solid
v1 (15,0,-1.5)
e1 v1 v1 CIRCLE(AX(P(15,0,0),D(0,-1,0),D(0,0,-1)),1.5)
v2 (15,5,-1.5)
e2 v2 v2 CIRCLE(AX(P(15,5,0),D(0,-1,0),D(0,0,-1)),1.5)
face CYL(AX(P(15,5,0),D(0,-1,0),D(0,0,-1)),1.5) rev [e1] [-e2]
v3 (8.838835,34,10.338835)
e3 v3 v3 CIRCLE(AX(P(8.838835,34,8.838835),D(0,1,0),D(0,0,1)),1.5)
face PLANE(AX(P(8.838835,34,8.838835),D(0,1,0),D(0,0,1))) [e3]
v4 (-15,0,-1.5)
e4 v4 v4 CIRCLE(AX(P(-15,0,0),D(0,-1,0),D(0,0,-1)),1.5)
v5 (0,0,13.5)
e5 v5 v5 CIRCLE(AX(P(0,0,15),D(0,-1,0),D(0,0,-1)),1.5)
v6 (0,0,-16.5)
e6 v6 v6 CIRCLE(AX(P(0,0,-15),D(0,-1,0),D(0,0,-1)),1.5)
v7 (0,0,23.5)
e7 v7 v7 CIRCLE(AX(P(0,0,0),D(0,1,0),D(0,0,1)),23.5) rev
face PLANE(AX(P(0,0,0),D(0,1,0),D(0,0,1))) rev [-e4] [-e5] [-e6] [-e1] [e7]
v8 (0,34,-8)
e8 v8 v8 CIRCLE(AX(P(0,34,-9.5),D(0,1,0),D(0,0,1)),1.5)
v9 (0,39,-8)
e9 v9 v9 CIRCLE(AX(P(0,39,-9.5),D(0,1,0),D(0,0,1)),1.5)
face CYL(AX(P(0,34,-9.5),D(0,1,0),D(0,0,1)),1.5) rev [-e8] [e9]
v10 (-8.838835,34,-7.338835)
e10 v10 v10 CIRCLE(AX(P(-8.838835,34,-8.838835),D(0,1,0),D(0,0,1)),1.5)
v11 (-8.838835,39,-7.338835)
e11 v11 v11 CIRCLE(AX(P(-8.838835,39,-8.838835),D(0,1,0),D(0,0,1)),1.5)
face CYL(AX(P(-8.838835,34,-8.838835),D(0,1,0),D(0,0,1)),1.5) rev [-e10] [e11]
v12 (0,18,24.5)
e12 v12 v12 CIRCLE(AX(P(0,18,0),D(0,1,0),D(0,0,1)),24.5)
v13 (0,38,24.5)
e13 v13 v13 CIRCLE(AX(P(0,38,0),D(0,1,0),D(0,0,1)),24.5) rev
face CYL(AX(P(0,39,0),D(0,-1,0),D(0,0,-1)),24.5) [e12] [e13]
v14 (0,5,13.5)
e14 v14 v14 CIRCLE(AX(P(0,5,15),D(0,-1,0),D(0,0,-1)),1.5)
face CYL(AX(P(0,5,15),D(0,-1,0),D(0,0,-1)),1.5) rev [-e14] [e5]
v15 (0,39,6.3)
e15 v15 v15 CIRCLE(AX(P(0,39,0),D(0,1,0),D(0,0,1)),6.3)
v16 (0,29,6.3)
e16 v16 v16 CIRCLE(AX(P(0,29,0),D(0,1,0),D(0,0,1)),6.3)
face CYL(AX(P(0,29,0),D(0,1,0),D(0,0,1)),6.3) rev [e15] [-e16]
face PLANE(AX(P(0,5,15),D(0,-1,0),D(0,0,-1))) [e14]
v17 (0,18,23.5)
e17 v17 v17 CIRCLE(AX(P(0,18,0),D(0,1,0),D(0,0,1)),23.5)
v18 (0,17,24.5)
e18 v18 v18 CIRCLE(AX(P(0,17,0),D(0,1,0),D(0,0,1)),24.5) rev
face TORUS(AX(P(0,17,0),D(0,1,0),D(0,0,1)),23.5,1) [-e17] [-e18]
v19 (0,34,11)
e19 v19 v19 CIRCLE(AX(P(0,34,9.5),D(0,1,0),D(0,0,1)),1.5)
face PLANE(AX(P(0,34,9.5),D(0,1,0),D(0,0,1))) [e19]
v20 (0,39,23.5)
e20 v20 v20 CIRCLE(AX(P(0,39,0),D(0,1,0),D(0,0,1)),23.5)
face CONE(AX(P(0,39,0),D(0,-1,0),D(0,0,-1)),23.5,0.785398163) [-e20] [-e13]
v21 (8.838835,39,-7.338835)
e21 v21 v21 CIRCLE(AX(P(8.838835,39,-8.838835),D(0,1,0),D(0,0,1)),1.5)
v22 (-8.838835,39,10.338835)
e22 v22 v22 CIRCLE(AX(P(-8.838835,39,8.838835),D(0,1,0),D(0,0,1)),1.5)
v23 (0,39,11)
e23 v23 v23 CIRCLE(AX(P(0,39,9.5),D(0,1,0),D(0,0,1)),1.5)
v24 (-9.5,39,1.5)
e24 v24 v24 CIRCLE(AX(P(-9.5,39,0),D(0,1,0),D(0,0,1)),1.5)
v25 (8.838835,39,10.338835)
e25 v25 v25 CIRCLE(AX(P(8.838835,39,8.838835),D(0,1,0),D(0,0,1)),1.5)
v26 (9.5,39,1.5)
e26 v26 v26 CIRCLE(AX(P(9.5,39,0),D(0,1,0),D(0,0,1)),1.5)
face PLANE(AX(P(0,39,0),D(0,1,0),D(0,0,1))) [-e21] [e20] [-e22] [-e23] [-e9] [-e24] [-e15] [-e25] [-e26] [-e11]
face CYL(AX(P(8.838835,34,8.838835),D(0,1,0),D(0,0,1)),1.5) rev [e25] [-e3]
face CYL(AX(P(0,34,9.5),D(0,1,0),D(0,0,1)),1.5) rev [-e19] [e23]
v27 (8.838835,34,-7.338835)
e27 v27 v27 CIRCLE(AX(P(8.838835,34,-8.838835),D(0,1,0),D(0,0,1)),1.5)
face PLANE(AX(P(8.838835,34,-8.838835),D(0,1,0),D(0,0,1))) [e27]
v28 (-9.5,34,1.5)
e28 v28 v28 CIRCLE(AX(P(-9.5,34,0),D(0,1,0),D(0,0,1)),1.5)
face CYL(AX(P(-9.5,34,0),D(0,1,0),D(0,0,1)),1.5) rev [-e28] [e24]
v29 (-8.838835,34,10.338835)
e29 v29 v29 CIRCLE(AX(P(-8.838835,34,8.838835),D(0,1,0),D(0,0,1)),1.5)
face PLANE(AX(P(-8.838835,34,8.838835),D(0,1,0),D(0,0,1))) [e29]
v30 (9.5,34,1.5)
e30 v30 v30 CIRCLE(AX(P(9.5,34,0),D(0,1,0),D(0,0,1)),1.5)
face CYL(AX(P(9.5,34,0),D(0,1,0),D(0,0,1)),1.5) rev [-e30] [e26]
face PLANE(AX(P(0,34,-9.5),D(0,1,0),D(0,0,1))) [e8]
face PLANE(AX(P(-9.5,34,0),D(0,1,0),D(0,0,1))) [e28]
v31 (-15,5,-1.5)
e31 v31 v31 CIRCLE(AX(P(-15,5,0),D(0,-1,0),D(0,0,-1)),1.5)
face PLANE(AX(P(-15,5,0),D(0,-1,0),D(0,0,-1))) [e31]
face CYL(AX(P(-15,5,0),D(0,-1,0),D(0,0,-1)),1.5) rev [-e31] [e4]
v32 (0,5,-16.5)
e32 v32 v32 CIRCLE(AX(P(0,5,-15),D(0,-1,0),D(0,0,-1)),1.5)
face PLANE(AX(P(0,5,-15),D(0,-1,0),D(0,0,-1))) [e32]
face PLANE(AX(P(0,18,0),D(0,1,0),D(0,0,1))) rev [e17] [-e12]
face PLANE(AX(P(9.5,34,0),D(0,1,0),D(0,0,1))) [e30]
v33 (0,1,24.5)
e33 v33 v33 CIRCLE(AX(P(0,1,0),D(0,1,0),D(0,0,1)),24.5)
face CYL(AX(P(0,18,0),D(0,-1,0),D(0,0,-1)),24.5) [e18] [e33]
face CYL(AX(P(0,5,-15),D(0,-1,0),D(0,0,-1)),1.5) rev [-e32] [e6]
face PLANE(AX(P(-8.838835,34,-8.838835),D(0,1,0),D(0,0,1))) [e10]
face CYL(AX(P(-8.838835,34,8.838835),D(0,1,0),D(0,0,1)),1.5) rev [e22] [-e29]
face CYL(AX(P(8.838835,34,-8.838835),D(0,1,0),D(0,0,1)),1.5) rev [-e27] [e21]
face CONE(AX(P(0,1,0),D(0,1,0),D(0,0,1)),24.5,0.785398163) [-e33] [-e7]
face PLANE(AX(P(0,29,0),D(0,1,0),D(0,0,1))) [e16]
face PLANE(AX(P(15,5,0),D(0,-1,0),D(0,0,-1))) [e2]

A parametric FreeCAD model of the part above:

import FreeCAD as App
import Part
import Sketcher
Q = App.Units.Quantity


def edges_at(feature, points):
    """Names of the edges that pass closest to the given points."""
    edges = feature.Shape.Edges
    near = lambda p: min(range(len(edges)), key=lambda i: edges[i].distToShape(Part.Vertex(*p))[0])
    return sorted({f"Edge{near(p) + 1}" for p in points})

doc = App.newDocument("Part")
body = doc.addObject("PartDesign::Body", "Body")

sketch1 = body.newObject("Sketcher::SketchObject", "Sketch")
sketch1.AttachmentSupport = (doc.getObject("XZ_Plane"), [""])
sketch1.MapMode = "FlatFace"
sketch1.addGeometry(Part.Circle(App.Vector(0, 0, 0), App.Vector(0, 0, 1), 24), False)
sketch1.addConstraint([
    Sketcher.Constraint("Coincident", 0, 3, -1, 1),
    Sketcher.Constraint("Diameter", 0, Q("49 mm")),
])
pad1 = body.newObject("PartDesign::Pad", "Pad")
pad1.Profile = sketch1
pad1.Length = 18
pad1.Reversed = True
doc.recompute()

fillet = body.newObject("PartDesign::Fillet", "Fillet")
fillet.Base = (pad1, edges_at(pad1, [(-24.5, 18, 0)]))
fillet.Radius = 1

sketch2 = body.newObject("Sketcher::SketchObject", "Sketch001")
sketch2.AttachmentSupport = (doc.getObject("XZ_Plane"), [""])
sketch2.MapMode = "FlatFace"
sketch2.AttachmentOffset = App.Placement(App.Vector(0, 0, -18), App.Rotation())
sketch2.addGeometry(Part.Circle(App.Vector(0, 0, 0), App.Vector(0, 0, 1), 24), False)
sketch2.addConstraint([
    Sketcher.Constraint("Coincident", 0, 3, -1, 1),
    Sketcher.Constraint("Diameter", 0, Q("49 mm")),
])
pad2 = body.newObject("PartDesign::Pad", "Pad001")
pad2.Profile = sketch2
pad2.Length = 21
pad2.Reversed = True
doc.recompute()

chamfer = body.newObject("PartDesign::Chamfer", "Chamfer")
chamfer.Base = (pad2, edges_at(pad2, [(-24.5, 39, 0)]))
chamfer.Size = 1
doc.recompute()

chamfer2 = body.newObject("PartDesign::Chamfer", "Chamfer001")
chamfer2.Base = (chamfer, edges_at(chamfer, [(-24.5, 0, 0)]))
chamfer2.Size = 1

sketch3 = body.newObject("Sketcher::SketchObject", "Sketch002")
sketch3.AttachmentSupport = (doc.getObject("XZ_Plane"), [""])
sketch3.MapMode = "FlatFace"
sketch3.AttachmentOffset = App.Placement(App.Vector(0, 0, -39), App.Rotation())
sketch3.addGeometry(Part.Circle(App.Vector(0, 0, 0), App.Vector(0, 0, 1), 6), False)
sketch3.addConstraint([
    Sketcher.Constraint("Coincident", 0, 3, -1, 1),
    Sketcher.Constraint("Diameter", 0, Q("12.6 mm")),
])
pocket1 = body.newObject("PartDesign::Pocket", "Pocket")
pocket1.Profile = sketch3
pocket1.Length = 10
pocket1.Reversed = True

sketch4 = body.newObject("Sketcher::SketchObject", "Sketch003")
sketch4.AttachmentSupport = (doc.getObject("XZ_Plane"), [""])
sketch4.MapMode = "FlatFace"
sketch4.AttachmentOffset = App.Placement(App.Vector(0, 0, -39), App.Rotation())
sketch4.addGeometry([
    Part.Circle(App.Vector(9.5, 0, 0), App.Vector(0, 0, 1), 1.5),
    Part.Circle(App.Vector(0, 9.5, 0), App.Vector(0, 0, 1), 1.5),
    Part.Circle(App.Vector(-9.5, 0, 0), App.Vector(0, 0, 1), 1.5),
    Part.Circle(App.Vector(0, -9.5, 0), App.Vector(0, 0, 1), 1.5),
    Part.Circle(App.Vector(8.8, -8.8, 0), App.Vector(0, 0, 1), 1.5),
    Part.Circle(App.Vector(8.8, 8.8, 0), App.Vector(0, 0, 1), 1.5),
    Part.Circle(App.Vector(-8.8, 8.8, 0), App.Vector(0, 0, 1), 1.5),
    Part.Circle(App.Vector(-8.8, -8.8, 0), App.Vector(0, 0, 1), 1.5),
], False)
sketch4.addConstraint([
    Sketcher.Constraint("Equal", 0, 1),
    Sketcher.Constraint("Equal", 1, 2),
    Sketcher.Constraint("Equal", 2, 3),
    Sketcher.Constraint("Equal", 3, 4),
    Sketcher.Constraint("Equal", 4, 5),
    Sketcher.Constraint("Equal", 5, 6),
    Sketcher.Constraint("Equal", 6, 7),
    Sketcher.Constraint("Symmetric", 0, 3, 2, 3, -1, 1),
    Sketcher.Constraint("Symmetric", 1, 3, 3, 3, -1, 1),
    Sketcher.Constraint("Symmetric", 4, 3, 6, 3, -1, 1),
    Sketcher.Constraint("Symmetric", 5, 3, 7, 3, -1, 1),
    Sketcher.Constraint("Symmetric", 5, 3, 6, 3, -2),
    Sketcher.Constraint("PointOnObject", 0, 3, -1),
    Sketcher.Constraint("PointOnObject", 1, 3, -2),
    Sketcher.Constraint("Diameter", 0, Q("3 mm")),
    Sketcher.Constraint("DistanceX", 2, 3, 0, 3, Q("19 mm")),
    Sketcher.Constraint("DistanceY", 3, 3, 1, 3, Q("19 mm")),
    Sketcher.Constraint("DistanceY", 4, 3, 5, 3, Q("17.67767 mm")),
    Sketcher.Constraint("DistanceX", 6, 3, 5, 3, Q("17.67767 mm")),
])
pocket2 = body.newObject("PartDesign::Pocket", "Pocket001")
pocket2.Profile = sketch4
pocket2.Length = 5
pocket2.Reversed = True

sketch5 = body.newObject("Sketcher::SketchObject", "Sketch004")
sketch5.AttachmentSupport = (doc.getObject("XZ_Plane"), [""])
sketch5.MapMode = "FlatFace"
sketch5.addGeometry([
    Part.Circle(App.Vector(15, 0, 0), App.Vector(0, 0, 1), 1.5),
    Part.Circle(App.Vector(0, -15, 0), App.Vector(0, 0, 1), 1.5),
    Part.Circle(App.Vector(-15, 0, 0), App.Vector(0, 0, 1), 1.5),
    Part.Circle(App.Vector(0, 15, 0), App.Vector(0, 0, 1), 1.5),
], False)
sketch5.addConstraint([
    Sketcher.Constraint("Equal", 0, 1),
    Sketcher.Constraint("Equal", 1, 2),
    Sketcher.Constraint("Equal", 2, 3),
    Sketcher.Constraint("Symmetric", 0, 3, 2, 3, -1, 1),
    Sketcher.Constraint("Symmetric", 1, 3, 3, 3, -1, 1),
    Sketcher.Constraint("PointOnObject", 0, 3, -1),
    Sketcher.Constraint("PointOnObject", 1, 3, -2),
    Sketcher.Constraint("Diameter", 0, Q("3 mm")),
    Sketcher.Constraint("DistanceX", -1, 1, 0, 3, Q("15 mm")),
    Sketcher.Constraint("DistanceY", 1, 3, -1, 1, Q("15 mm")),
])
pocket3 = body.newObject("PartDesign::Pocket", "Pocket002")
pocket3.Profile = sketch5
pocket3.Length = 5

doc.recompute()
